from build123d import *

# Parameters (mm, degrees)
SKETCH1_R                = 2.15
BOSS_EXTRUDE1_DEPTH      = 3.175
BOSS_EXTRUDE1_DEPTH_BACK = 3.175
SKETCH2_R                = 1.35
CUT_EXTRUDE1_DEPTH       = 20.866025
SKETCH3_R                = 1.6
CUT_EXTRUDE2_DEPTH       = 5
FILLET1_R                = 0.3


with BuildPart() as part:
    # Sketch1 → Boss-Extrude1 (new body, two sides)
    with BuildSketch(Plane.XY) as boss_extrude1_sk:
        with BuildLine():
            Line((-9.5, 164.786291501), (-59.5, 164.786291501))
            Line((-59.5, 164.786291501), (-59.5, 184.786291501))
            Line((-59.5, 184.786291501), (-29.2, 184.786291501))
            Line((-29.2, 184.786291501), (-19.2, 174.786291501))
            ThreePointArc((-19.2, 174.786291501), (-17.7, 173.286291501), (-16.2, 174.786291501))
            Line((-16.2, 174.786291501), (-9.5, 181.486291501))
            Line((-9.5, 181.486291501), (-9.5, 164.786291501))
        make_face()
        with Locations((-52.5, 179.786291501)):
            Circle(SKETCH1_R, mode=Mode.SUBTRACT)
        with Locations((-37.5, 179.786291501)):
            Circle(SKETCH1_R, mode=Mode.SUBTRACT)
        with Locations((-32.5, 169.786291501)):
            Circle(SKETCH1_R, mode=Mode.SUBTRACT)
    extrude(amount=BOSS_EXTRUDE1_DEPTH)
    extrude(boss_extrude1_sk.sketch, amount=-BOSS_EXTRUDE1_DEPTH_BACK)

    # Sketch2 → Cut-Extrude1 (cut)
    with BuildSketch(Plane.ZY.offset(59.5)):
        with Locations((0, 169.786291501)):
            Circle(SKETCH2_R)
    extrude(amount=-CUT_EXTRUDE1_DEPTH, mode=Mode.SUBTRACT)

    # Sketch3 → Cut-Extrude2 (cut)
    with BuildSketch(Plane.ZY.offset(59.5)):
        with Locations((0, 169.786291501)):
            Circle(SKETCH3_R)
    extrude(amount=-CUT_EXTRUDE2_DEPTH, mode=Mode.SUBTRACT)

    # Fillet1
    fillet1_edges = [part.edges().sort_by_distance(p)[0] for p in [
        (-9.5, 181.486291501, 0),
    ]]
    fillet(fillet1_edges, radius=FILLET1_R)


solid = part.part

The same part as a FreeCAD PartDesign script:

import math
import FreeCAD as App
import Part
import Sketcher
Q = App.Units.Quantity


def edges_at(feature, points):
    """Names of the edges that pass closest to the given points."""
    edges = feature.Shape.Edges
    near = lambda p: min(range(len(edges)), key=lambda i: edges[i].distToShape(Part.Vertex(*p))[0])
    return sorted({f"Edge{near(p) + 1}" for p in points})

doc = App.newDocument("Part")
params = doc.addObject("Spreadsheet::Sheet", "Params")
for row, (alias, value) in enumerate([
    ("sketch1_diameter", "4.3 mm"),
    ("sketch1_radius", "1.5 mm"),
    ("sketch1_width", "50 mm"),
    ("sketch1_height", "20 mm"),
    ("sketch1_width2", "30.3 mm"),
    ("pad1_length", "3.175 mm"),
    ("pad1_length2", "3.175 mm"),
    ("sketch2_diameter", "2.7 mm"),
    ("pocket1_length", "20.866025 mm"),
    ("sketch3_diameter", "3.2 mm"),
    ("pocket2_length", "5 mm"),
    ("fillet_radius", "0.3 mm"),
], start=1):
    params.set(f"A{row}", alias)
    params.set(f"B{row}", "=" + value)
    params.setAlias(f"B{row}", alias)

body = doc.addObject("PartDesign::Body", "Body")

# Sketch on XY plane
sketch1 = doc.addObject("Sketcher::SketchObject", "Sketch")
body.addObject(sketch1)
sketch1.AttachmentSupport = (doc.XY_Plane, [""])
sketch1.MapMode = "FlatFace"
sketch1.addGeometry([
    Part.LineSegment(App.Vector(-59.5, 164.786292, 0), App.Vector(-9.5, 164.786292, 0)),  # 0
    Part.LineSegment(App.Vector(-9.5, 164.786292, 0), App.Vector(-9.5, 181.486292, 0)),  # 1
    Part.LineSegment(App.Vector(-9.5, 181.486292, 0), App.Vector(-16.2, 174.786292, 0)),  # 2
    Part.ArcOfCircle(Part.Circle(App.Vector(-17.7, 174.786292, 0), App.Vector(0, 0, 1), 1.5), math.radians(180), math.radians(360)),  # 3
    Part.LineSegment(App.Vector(-19.2, 174.786292, 0), App.Vector(-29.2, 184.786292, 0)),  # 4
    Part.LineSegment(App.Vector(-29.2, 184.786292, 0), App.Vector(-59.5, 184.786292, 0)),  # 5
    Part.LineSegment(App.Vector(-59.5, 184.786292, 0), App.Vector(-59.5, 164.786292, 0)),  # 6
    Part.Circle(App.Vector(-32.5, 169.786292, 0), App.Vector(0, 0, 1), 2.15),  # 7
    Part.Circle(App.Vector(-37.5, 179.786292, 0), App.Vector(0, 0, 1), 2.15),  # 8
    Part.Circle(App.Vector(-52.5, 179.786292, 0), App.Vector(0, 0, 1), 2.15),  # 9
], False)
sketch1.addConstraint([
    Sketcher.Constraint("Coincident", 0, 2, 1, 1),
    Sketcher.Constraint("Coincident", 1, 2, 2, 1),
    Sketcher.Constraint("Coincident", 2, 2, 3, 2),
    Sketcher.Constraint("Coincident", 3, 1, 4, 1),
    Sketcher.Constraint("Coincident", 4, 2, 5, 1),
    Sketcher.Constraint("Coincident", 5, 2, 6, 1),
    Sketcher.Constraint("Coincident", 6, 2, 0, 1),
    Sketcher.Constraint("Horizontal", 0),
    Sketcher.Constraint("Vertical", 1),
    Sketcher.Constraint("Horizontal", 5),
    Sketcher.Constraint("Vertical", 6),
    Sketcher.Constraint("Equal", 7, 8),
    Sketcher.Constraint("Equal", 8, 9),
    Sketcher.Constraint("Perpendicular", 2, 4),
    Sketcher.Constraint("Horizontal", 8, 3, 9, 3),
    Sketcher.Constraint("Horizontal", 3, 3, 2, 2),
    Sketcher.Constraint("Horizontal", 2, 2, 3, 1),
    Sketcher.Constraint("Diameter", 7, Q("4.3 mm")),
    Sketcher.Constraint("Radius", 3, Q("1.5 mm")),
    Sketcher.Constraint("DistanceX", 0, 1, 0, 2, Q("50 mm")),
    Sketcher.Constraint("DistanceY", 6, 2, 6, 1, Q("20 mm")),
    Sketcher.Constraint("Angle", 2, Q("-135 deg")),
    Sketcher.Constraint("DistanceX", 5, 2, 5, 1, Q("30.3 mm")),
    Sketcher.Constraint("DistanceY", 1, 1, 1, 2, Q("16.7 mm")),
    Sketcher.Constraint("DistanceY", 7, 3, 3, 3, Q("5 mm")),
    Sketcher.Constraint("DistanceX", 8, 3, 7, 3, Q("5 mm")),
    Sketcher.Constraint("DistanceY", 7, 3, 8, 3, Q("10 mm")),
    Sketcher.Constraint("DistanceX", 9, 3, 8, 3, Q("15 mm")),
    Sketcher.Constraint("DistanceX", 7, 3, 0, 2, Q("23 mm")),
    Sketcher.Constraint("DistanceX", 3, 3, -1, 1, Q("17.7 mm")),
    Sketcher.Constraint("DistanceY", -1, 1, 3, 3, Q("174.786292 mm")),
])
sketch1.setExpression("Constraints[17]", "Params.sketch1_diameter")
sketch1.setExpression("Constraints[18]", "Params.sketch1_radius")
sketch1.setExpression("Constraints[19]", "Params.sketch1_width")
sketch1.setExpression("Constraints[20]", "Params.sketch1_height")
sketch1.setExpression("Constraints[22]", "Params.sketch1_width2")
pad1 = doc.addObject("PartDesign::Pad", "Pad")
body.addObject(pad1)
pad1.Profile = sketch1
pad1.Type = "TwoLengths"
pad1.setExpression("Length", "Params.pad1_length")
pad1.setExpression("Length2", "Params.pad1_length2")

# Sketch on YZ plane
sketch2 = doc.addObject("Sketcher::SketchObject", "Sketch001")
body.addObject(sketch2)
sketch2.AttachmentSupport = (doc.YZ_Plane, [""])
sketch2.MapMode = "FlatFace"
sketch2.AttachmentOffset = App.Placement(App.Vector(0, 0, -59.5), App.Rotation())
sketch2.addGeometry(Part.Circle(App.Vector(169.786292, 0, 0), App.Vector(0, 0, 1), 1.35), False)
sketch2.addConstraint([
    Sketcher.Constraint("PointOnObject", 0, 3, -1),
    Sketcher.Constraint("Diameter", 0, Q("2.7 mm")),
    Sketcher.Constraint("DistanceX", -1, 1, 0, 3, Q("169.786292 mm")),
])
sketch2.setExpression("Constraints[1]", "Params.sketch2_diameter")
pocket1 = doc.addObject("PartDesign::Pocket", "Pocket")
body.addObject(pocket1)
pocket1.Profile = sketch2
pocket1.setExpression("Length", "Params.pocket1_length")
pocket1.Reversed = True

# Sketch on YZ plane
sketch3 = doc.addObject("Sketcher::SketchObject", "Sketch002")
body.addObject(sketch3)
sketch3.AttachmentSupport = (doc.YZ_Plane, [""])
sketch3.MapMode = "FlatFace"
sketch3.AttachmentOffset = App.Placement(App.Vector(0, 0, -59.5), App.Rotation())
sketch3.addGeometry(Part.Circle(App.Vector(169.786292, 0, 0), App.Vector(0, 0, 1), 1.6), False)
sketch3.addConstraint([
    Sketcher.Constraint("PointOnObject", 0, 3, -1),
    Sketcher.Constraint("Diameter", 0, Q("3.2 mm")),
    Sketcher.Constraint("DistanceX", -1, 1, 0, 3, Q("169.786292 mm")),
])
sketch3.setExpression("Constraints[1]", "Params.sketch3_diameter")
pocket2 = doc.addObject("PartDesign::Pocket", "Pocket001")
body.addObject(pocket2)
pocket2.Profile = sketch3
pocket2.setExpression("Length", "Params.pocket2_length")
pocket2.Reversed = True
doc.recompute()

fillet = doc.addObject("PartDesign::Fillet", "Fillet")
body.addObject(fillet)
fillet.Base = (pocket2, edges_at(pocket2, [(-9.5, 181.486, 0)]))
fillet.setExpression("Radius", "Params.fillet_radius")

doc.recompute()
